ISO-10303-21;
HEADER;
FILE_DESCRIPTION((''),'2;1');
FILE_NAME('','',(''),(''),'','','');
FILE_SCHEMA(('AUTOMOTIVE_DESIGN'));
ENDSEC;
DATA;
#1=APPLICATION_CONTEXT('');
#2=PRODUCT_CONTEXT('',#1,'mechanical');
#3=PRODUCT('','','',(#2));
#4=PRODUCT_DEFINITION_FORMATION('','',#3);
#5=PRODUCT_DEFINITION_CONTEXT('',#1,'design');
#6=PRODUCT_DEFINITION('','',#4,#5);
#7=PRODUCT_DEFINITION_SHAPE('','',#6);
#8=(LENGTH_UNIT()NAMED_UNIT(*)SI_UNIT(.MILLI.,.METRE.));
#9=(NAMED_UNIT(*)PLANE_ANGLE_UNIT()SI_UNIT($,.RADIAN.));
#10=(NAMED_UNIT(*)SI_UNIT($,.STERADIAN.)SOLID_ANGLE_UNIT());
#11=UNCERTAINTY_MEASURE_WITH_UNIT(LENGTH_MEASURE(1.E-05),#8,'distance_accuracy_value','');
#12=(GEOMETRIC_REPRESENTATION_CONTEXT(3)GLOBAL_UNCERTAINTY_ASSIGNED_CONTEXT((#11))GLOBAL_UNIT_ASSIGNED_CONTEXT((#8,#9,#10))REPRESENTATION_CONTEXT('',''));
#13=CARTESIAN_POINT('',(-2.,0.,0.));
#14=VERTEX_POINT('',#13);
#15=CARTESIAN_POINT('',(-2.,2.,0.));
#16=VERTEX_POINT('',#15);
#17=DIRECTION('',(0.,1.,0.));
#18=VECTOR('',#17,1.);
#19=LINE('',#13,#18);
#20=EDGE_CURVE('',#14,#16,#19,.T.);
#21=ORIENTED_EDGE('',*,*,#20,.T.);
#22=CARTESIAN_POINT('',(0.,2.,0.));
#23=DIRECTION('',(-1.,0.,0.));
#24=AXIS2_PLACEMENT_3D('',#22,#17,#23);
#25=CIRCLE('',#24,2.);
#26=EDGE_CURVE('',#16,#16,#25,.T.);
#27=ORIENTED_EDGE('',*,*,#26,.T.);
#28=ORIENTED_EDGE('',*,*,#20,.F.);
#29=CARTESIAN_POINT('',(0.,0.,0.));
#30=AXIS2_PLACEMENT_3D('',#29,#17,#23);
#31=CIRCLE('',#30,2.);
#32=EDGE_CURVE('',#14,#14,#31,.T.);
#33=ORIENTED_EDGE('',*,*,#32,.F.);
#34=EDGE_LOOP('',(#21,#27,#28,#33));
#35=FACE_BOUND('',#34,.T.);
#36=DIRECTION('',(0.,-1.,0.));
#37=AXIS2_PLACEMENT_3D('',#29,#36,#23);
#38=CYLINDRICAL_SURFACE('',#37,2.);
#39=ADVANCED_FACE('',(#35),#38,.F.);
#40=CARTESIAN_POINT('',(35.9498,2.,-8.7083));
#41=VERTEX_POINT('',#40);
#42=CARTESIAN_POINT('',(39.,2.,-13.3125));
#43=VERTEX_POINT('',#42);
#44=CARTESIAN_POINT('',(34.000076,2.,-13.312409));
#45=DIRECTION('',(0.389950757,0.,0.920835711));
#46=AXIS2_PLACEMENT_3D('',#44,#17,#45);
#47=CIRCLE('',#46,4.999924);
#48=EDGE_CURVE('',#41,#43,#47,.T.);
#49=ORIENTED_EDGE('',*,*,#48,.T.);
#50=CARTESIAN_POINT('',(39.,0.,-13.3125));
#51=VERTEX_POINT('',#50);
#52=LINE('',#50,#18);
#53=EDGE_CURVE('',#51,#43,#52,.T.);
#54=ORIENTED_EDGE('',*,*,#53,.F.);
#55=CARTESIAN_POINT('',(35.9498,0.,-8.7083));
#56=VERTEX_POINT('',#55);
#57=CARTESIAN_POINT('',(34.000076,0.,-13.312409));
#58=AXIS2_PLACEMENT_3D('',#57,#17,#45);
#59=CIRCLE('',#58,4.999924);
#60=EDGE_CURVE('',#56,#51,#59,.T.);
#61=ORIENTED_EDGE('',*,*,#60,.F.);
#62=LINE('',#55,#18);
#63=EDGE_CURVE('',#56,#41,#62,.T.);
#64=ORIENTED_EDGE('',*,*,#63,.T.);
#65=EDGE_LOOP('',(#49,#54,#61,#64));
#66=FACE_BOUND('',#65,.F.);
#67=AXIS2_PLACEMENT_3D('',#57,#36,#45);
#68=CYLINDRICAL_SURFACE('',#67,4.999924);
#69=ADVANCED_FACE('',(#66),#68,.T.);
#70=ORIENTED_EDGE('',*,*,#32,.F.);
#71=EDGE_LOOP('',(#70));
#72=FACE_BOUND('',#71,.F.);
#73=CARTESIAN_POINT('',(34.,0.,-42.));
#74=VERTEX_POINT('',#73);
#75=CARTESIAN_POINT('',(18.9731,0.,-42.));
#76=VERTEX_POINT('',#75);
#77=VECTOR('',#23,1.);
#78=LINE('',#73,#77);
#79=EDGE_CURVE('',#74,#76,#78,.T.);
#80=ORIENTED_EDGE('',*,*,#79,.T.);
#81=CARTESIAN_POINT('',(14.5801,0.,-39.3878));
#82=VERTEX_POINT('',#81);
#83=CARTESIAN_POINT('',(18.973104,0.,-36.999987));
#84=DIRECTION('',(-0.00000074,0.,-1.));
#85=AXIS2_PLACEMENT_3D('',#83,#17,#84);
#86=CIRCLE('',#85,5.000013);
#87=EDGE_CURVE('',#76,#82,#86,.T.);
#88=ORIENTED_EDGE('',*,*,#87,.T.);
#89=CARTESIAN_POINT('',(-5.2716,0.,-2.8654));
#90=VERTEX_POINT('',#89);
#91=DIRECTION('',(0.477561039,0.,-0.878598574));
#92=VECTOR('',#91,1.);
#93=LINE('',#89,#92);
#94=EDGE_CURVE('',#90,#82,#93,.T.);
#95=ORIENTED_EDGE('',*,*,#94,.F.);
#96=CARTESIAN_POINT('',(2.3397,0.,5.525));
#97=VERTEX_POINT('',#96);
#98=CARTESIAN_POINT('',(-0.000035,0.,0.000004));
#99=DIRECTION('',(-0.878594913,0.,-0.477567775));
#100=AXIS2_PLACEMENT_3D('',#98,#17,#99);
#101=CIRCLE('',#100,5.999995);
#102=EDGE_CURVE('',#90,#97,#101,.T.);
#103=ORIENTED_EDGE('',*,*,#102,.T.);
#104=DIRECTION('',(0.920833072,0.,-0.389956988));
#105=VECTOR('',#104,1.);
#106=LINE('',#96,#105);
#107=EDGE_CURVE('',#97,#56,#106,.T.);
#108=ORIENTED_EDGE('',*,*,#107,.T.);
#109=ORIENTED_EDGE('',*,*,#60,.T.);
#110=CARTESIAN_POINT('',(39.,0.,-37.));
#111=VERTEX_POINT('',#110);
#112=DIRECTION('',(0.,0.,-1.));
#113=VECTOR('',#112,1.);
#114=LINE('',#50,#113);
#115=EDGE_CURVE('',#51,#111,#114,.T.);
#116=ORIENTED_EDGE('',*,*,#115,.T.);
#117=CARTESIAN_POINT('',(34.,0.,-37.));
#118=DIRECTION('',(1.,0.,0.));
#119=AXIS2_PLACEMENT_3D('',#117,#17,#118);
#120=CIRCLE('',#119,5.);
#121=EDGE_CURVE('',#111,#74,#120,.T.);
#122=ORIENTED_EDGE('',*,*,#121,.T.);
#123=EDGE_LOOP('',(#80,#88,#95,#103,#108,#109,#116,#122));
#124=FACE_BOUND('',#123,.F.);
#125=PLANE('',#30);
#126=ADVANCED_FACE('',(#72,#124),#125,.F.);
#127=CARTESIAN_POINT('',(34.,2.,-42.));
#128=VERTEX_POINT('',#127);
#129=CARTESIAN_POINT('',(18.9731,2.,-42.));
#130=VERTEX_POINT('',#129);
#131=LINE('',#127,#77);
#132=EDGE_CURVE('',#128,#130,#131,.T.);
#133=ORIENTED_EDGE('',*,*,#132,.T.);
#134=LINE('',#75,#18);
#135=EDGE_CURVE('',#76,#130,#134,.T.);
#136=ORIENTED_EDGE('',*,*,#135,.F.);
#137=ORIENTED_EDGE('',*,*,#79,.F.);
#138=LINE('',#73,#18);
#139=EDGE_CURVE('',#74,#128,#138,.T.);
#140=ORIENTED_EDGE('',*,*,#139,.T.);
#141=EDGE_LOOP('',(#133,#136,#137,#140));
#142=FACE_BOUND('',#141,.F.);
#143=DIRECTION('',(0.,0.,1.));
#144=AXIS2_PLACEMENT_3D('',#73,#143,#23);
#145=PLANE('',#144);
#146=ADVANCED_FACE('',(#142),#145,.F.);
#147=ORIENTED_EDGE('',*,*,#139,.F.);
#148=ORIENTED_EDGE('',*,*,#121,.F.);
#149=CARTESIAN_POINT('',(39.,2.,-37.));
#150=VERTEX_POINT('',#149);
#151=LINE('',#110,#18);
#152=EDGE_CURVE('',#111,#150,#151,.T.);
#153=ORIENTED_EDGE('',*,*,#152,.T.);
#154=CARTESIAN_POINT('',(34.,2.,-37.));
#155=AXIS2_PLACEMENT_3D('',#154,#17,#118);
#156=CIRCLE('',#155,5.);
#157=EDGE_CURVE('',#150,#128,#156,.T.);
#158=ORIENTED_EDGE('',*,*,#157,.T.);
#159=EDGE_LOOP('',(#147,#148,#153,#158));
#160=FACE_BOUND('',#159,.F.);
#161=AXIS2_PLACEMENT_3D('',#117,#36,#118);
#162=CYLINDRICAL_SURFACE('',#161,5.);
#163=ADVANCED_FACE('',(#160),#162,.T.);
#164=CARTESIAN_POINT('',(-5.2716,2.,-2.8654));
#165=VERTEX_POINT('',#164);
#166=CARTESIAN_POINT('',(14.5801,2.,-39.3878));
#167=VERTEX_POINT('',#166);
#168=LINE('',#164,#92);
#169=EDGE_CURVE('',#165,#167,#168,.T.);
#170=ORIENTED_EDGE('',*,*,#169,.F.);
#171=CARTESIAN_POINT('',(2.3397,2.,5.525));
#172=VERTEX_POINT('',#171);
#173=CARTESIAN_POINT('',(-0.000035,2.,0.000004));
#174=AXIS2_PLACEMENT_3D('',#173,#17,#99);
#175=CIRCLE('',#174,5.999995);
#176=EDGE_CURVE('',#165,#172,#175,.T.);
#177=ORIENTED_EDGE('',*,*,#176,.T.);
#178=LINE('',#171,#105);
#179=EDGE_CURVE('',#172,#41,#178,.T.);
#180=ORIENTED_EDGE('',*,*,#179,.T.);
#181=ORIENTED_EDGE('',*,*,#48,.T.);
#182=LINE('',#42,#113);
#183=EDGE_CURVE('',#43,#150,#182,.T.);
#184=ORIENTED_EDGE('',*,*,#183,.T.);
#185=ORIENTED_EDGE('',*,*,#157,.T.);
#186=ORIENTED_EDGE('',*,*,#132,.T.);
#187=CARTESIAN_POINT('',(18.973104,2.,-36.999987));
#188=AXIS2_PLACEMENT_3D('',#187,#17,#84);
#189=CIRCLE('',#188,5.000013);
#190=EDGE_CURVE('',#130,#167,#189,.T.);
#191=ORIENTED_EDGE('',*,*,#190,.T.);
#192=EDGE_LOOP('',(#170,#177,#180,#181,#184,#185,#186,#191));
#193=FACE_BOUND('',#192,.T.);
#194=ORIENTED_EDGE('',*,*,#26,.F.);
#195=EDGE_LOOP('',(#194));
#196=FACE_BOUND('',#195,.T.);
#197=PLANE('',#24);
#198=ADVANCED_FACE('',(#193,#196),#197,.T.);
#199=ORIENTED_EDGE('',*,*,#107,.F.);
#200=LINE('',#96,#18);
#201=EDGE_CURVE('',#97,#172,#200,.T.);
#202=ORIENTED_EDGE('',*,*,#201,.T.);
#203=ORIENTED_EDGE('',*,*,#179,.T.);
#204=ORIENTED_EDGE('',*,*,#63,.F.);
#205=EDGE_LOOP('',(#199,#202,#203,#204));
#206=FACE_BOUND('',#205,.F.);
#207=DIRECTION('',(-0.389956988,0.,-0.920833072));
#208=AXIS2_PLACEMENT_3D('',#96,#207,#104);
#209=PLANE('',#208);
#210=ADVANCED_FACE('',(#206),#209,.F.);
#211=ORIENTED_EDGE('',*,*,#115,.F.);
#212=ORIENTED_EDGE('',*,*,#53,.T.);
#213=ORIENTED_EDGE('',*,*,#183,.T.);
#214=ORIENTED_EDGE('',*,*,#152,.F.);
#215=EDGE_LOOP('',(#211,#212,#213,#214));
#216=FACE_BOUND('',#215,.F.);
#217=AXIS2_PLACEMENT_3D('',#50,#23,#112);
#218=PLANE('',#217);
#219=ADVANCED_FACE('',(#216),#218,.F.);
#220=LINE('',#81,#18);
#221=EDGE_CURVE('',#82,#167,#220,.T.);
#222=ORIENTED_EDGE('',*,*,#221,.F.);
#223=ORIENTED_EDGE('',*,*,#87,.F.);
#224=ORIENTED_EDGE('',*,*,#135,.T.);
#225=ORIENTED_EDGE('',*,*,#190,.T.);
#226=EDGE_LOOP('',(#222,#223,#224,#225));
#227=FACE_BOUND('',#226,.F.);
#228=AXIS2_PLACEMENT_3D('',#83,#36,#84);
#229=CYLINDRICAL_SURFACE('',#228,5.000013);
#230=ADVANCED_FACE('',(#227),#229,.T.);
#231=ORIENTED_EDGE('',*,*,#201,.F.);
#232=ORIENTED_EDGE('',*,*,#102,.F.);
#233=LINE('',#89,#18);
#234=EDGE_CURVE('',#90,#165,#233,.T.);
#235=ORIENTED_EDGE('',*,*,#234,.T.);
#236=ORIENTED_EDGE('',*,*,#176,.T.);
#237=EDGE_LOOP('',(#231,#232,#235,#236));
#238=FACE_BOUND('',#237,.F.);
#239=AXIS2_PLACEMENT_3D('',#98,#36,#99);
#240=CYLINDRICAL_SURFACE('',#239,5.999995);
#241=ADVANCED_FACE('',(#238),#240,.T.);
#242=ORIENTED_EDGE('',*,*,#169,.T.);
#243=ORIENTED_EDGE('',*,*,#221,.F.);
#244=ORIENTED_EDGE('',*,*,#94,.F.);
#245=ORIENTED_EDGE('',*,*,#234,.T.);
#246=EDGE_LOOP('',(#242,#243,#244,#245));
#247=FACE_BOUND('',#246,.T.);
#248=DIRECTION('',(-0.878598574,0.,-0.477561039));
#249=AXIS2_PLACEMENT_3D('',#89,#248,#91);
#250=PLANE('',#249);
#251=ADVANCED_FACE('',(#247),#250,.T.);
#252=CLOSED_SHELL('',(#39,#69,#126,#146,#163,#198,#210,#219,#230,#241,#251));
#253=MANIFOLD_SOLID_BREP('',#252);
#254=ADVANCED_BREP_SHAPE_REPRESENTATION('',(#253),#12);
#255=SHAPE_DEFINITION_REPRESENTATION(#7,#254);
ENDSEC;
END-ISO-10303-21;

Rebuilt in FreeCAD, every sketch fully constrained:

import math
import FreeCAD as App
import Part
import Sketcher

doc = App.newDocument("Part")
body = doc.addObject("PartDesign::Body", "Body")

# Sketch on XZ plane
sketch1 = body.newObject("Sketcher::SketchObject", "Sketch")
sketch1.AttachmentSupport = (doc.getObject("XZ_Plane"), [""])
sketch1.MapMode = "FlatFace"
sketch1.addGeometry(Part.LineSegment(App.Vector(14.5801, -39.3878, 0), App.Vector(-5.2716, -2.8654, 0)), False)
sketch1.addGeometry(Part.ArcOfCircle(Part.Circle(App.Vector(0, 0, 0), App.Vector(0, 0, 1), 6.000024), math.radians(67.048551), math.radians(208.526475)), False)
sketch1.addGeometry(Part.LineSegment(App.Vector(2.3397, 5.525, 0), App.Vector(35.9498, -8.7083, 0)), False)
sketch1.addGeometry(Part.ArcOfCircle(Part.Circle(App.Vector(34, -13.3125, 0), App.Vector(0, 0, 1), 5.000038), math.radians(0), math.radians(67.048173)), False)
sketch1.addGeometry(Part.LineSegment(App.Vector(39, -13.3125, 0), App.Vector(39, -37, 0)), False)
sketch1.addGeometry(Part.ArcOfCircle(Part.Circle(App.Vector(34, -37, 0), App.Vector(0, 0, 1), 5), math.radians(-90), math.radians(0)), False)
sketch1.addGeometry(Part.LineSegment(App.Vector(34, -42, 0), App.Vector(18.9731, -42, 0)), False)
sketch1.addGeometry(Part.ArcOfCircle(Part.Circle(App.Vector(18.9731, -37, 0), App.Vector(0, 0, 1), 5), math.radians(-151.473861), math.radians(-90)), False)
sketch1.addGeometry(Part.Circle(App.Vector(0, 0, 0), App.Vector(0, 0, 1), 2), False)
sketch1.addConstraint(Sketcher.Constraint("Tangent", 0, 2, 1, 2))
sketch1.addConstraint(Sketcher.Constraint("Tangent", 1, 1, 2, 1))
sketch1.addConstraint(Sketcher.Constraint("Tangent", 2, 2, 3, 2))
sketch1.addConstraint(Sketcher.Constraint("Tangent", 3, 1, 4, 1))
sketch1.addConstraint(Sketcher.Constraint("Tangent", 4, 2, 5, 2))
sketch1.addConstraint(Sketcher.Constraint("Tangent", 5, 1, 6, 1))
sketch1.addConstraint(Sketcher.Constraint("Tangent", 6, 2, 7, 2))
sketch1.addConstraint(Sketcher.Constraint("Tangent", 7, 1, 0, 1))
sketch1.addConstraint(Sketcher.Constraint("Vertical", 4))
sketch1.addConstraint(Sketcher.Constraint("Horizontal", 6))
sketch1.addConstraint(Sketcher.Constraint("Coincident", 1, 3, -1, 1))
sketch1.addConstraint(Sketcher.Constraint("Coincident", 8, 3, -1, 1))
sketch1.addConstraint(Sketcher.Constraint("Equal", 3, 5))
sketch1.addConstraint(Sketcher.Constraint("Equal", 5, 7))
sketch1.addConstraint(Sketcher.Constraint("Diameter", 8, 4.0))
sketch1.addConstraint(Sketcher.Constraint("Radius", 1, 6.0))
sketch1.addConstraint(Sketcher.Constraint("Radius", 3, 5.0))
sketch1.addConstraint(Sketcher.Constraint("DistanceX", -1, 1, 3, 3, 34.0))
sketch1.addConstraint(Sketcher.Constraint("DistanceY", 5, 3, -1, 1, 37.0))
sketch1.addConstraint(Sketcher.Constraint("DistanceX", 6, 2, 6, 1, 15.027))
sketch1.addConstraint(Sketcher.Constraint("DistanceX", 1, 1, 2, 2, 33.61))
pad1 = body.newObject("PartDesign::Pad", "Pad")
pad1.Profile = sketch1
pad1.Length = 2
pad1.Reversed = True

doc.recompute()
